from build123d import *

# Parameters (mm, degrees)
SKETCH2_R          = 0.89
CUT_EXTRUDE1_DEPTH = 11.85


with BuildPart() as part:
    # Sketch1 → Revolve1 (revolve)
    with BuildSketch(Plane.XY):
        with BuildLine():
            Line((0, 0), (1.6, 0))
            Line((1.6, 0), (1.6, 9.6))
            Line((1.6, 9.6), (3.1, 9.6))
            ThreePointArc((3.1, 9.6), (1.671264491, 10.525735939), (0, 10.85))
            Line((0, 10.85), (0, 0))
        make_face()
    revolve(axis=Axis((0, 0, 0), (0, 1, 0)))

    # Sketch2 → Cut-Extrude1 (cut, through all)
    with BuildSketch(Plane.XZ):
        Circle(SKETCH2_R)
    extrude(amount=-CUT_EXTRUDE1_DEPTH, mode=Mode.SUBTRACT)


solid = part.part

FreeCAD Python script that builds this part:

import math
import FreeCAD as App
import Part
import Sketcher

V = App.Vector
Q = App.Units.Quantity

doc = App.newDocument("Part")
params = doc.addObject("Spreadsheet::Sheet", "Params")
for row, (alias, value) in enumerate([
    ("sketch1_width", "1.6 mm"),
    ("sketch1_width2", "1.5 mm"),
    ("sketch1_height", "9.6 mm"),
    ("revolution_angle", "360 deg"),
    ("sketch2_diameter", "1.78 mm"),
], start=1):
    params.set(f"A{row}", alias)
    params.set(f"B{row}", "=" + value)
    params.setAlias(f"B{row}", alias)

body = doc.addObject("PartDesign::Body", "Body")

# Sketch on XY plane
sketch1 = body.newObject("Sketcher::SketchObject", "Sketch")
sketch1.AttachmentSupport = (doc.getObject("XY_Plane"), [""])
sketch1.MapMode = "FlatFace"
sketch1.addGeometry(Part.LineSegment(V(0, 0, 0), V(1.6, 0, 0)), False)
sketch1.addGeometry(Part.LineSegment(V(1.6, 0, 0), V(1.6, 9.6, 0)), False)
sketch1.addGeometry(Part.LineSegment(V(1.6, 9.6, 0), V(3.1, 9.6, 0)), False)
sketch1.addGeometry(Part.ArcOfCircle(Part.Circle(V(0, 6.4, 0), V(0, 0, 1), 4.5), math.radians(46), math.radians(90)), False)
sketch1.addGeometry(Part.LineSegment(V(0, 10.8, 0), V(0, 0, 0)), False)
sketch1.addConstraint(Sketcher.Constraint("Coincident", 0, 2, 1, 1))
sketch1.addConstraint(Sketcher.Constraint("Coincident", 1, 2, 2, 1))
sketch1.addConstraint(Sketcher.Constraint("Coincident", 2, 2, 3, 1))
sketch1.addConstraint(Sketcher.Constraint("Coincident", 3, 2, 4, 1))
sketch1.addConstraint(Sketcher.Constraint("Coincident", 4, 2, 0, 1))
sketch1.addConstraint(Sketcher.Constraint("Horizontal", 0))
sketch1.addConstraint(Sketcher.Constraint("Vertical", 1))
sketch1.addConstraint(Sketcher.Constraint("Horizontal", 2))
sketch1.addConstraint(Sketcher.Constraint("Vertical", 4))
sketch1.addConstraint(Sketcher.Constraint("Coincident", 4, 2, -1, 1))
sketch1.addConstraint(Sketcher.Constraint("PointOnObject", 3, 3, -2))
sketch1.addConstraint(Sketcher.Constraint("DistanceX", 0, 1, 0, 2, Q("1.6 mm")))
sketch1.addConstraint(Sketcher.Constraint("DistanceX", 2, 1, 2, 2, Q("1.5 mm")))
sketch1.addConstraint(Sketcher.Constraint("DistanceY", 1, 1, 1, 2, Q("9.6 mm")))
sketch1.addConstraint(Sketcher.Constraint("Radius", 3, Q("4.469 mm")))
sketch1.setExpression("Constraints[11]", "Params.sketch1_width")
sketch1.setExpression("Constraints[12]", "Params.sketch1_width2")
sketch1.setExpression("Constraints[13]", "Params.sketch1_height")
revolution = body.newObject("PartDesign::Revolution", "Revolution")
revolution.Profile = sketch1
revolution.ReferenceAxis = (sketch1, ["V_Axis"])
revolution.setExpression("Angle", "Params.revolution_angle")

# Sketch on XZ plane
sketch2 = body.newObject("Sketcher::SketchObject", "Sketch001")
sketch2.AttachmentSupport = (doc.getObject("XZ_Plane"), [""])
sketch2.MapMode = "FlatFace"
sketch2.addGeometry(Part.Circle(V(0, 0, 0), V(0, 0, 1), 0.9), False)
sketch2.addConstraint(Sketcher.Constraint("Coincident", 0, 3, -1, 1))
sketch2.addConstraint(Sketcher.Constraint("Diameter", 0, Q("1.78 mm")))
sketch2.setExpression("Constraints[1]", "Params.sketch2_diameter")
pocket1 = body.newObject("PartDesign::Pocket", "Pocket")
pocket1.Profile = sketch2
pocket1.Type = "ThroughAll"

doc.recompute()
